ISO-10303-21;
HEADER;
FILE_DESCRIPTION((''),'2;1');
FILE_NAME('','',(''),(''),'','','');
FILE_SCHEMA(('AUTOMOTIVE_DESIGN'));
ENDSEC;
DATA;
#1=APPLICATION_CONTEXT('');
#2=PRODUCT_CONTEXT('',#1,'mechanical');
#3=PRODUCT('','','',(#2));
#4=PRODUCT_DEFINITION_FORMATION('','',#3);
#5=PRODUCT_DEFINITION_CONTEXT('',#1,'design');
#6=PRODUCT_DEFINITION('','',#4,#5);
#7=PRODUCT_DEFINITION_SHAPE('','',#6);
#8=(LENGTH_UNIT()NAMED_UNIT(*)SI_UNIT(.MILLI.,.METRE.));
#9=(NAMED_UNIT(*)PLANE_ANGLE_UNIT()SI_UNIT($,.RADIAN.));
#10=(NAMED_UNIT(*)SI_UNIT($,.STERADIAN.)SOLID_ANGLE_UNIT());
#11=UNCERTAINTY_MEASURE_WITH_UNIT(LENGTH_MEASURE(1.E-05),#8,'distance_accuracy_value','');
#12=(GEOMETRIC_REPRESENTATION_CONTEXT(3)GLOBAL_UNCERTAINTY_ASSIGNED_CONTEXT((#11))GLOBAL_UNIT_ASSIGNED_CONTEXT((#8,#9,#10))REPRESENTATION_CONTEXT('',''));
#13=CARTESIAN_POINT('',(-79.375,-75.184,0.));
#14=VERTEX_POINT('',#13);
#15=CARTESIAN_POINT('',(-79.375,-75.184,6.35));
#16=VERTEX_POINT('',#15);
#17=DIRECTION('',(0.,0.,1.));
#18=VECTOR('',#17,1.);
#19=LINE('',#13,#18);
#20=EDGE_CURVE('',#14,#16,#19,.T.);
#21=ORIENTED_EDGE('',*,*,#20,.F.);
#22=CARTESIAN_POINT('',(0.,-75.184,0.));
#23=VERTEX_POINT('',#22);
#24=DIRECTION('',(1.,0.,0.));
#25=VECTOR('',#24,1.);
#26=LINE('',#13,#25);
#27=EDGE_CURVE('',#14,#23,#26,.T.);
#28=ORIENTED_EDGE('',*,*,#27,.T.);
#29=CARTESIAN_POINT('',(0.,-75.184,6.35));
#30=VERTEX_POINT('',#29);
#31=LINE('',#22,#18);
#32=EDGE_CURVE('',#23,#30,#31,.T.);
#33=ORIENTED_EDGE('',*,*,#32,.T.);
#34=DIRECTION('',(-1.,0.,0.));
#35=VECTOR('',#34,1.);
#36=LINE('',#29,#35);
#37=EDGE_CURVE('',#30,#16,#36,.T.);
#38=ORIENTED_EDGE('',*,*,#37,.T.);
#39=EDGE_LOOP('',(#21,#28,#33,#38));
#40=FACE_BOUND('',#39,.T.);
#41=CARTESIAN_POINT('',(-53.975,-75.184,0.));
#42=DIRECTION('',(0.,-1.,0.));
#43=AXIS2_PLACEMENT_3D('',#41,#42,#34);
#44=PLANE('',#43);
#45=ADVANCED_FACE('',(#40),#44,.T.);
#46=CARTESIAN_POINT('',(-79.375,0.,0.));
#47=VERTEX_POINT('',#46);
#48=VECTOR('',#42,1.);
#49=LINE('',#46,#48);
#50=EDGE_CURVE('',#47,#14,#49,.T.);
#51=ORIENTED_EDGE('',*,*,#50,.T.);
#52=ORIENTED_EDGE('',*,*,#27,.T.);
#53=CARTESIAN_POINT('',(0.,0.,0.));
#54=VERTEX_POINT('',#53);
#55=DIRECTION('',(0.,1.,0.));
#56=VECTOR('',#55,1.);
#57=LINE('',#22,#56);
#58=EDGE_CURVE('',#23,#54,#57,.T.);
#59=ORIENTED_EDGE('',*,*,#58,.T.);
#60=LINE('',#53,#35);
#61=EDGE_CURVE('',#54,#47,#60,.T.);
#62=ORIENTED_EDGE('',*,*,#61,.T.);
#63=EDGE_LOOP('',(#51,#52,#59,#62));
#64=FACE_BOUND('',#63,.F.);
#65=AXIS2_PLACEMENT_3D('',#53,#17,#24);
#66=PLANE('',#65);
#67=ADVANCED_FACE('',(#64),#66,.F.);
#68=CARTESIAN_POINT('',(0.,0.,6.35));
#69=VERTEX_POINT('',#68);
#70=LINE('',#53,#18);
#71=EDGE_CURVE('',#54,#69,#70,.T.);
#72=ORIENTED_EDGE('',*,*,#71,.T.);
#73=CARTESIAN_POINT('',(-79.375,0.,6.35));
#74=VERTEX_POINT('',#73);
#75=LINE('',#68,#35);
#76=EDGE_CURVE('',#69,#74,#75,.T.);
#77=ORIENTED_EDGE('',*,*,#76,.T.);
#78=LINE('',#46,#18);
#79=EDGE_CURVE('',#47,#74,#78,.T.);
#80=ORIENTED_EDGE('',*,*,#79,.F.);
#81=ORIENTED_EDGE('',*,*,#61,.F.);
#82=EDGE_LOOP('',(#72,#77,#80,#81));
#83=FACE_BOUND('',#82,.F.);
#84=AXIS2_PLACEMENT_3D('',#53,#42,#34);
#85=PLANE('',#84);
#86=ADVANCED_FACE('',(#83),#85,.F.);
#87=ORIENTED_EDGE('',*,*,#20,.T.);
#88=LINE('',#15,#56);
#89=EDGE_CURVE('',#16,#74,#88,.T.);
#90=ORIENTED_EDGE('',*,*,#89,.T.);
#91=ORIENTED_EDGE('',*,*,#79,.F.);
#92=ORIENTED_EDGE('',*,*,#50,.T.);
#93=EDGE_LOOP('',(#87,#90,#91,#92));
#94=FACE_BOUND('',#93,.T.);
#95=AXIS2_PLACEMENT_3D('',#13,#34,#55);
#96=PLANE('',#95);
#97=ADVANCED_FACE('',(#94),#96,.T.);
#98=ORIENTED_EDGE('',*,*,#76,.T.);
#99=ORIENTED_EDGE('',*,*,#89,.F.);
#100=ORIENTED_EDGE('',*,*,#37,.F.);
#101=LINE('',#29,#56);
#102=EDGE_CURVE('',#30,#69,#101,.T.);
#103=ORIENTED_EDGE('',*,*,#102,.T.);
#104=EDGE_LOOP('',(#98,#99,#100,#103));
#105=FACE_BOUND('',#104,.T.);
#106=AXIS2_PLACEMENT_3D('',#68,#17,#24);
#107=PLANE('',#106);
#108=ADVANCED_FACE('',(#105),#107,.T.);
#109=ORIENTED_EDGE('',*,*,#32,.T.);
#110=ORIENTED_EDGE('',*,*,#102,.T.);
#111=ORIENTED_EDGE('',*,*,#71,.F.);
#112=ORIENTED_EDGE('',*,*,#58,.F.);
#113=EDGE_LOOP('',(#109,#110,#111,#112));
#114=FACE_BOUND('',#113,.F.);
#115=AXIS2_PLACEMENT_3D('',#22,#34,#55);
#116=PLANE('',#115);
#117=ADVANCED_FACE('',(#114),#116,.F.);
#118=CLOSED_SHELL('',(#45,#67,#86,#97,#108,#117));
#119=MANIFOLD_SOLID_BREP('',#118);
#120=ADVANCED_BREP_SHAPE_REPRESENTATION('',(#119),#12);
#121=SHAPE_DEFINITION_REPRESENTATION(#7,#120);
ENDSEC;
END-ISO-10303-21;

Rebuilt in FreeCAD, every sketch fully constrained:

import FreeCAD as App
import Part
import Sketcher

V = App.Vector
Q = App.Units.Quantity


def add_polygon(sketch, points):
    """Adds a closed chain of lines whose ends are joined by coincident constraints."""
    first, n = sketch.GeometryCount, len(points)
    for a, b in zip(points, points[1:] + points[:1]):
        sketch.addGeometry(Part.LineSegment(App.Vector(*a, 0), App.Vector(*b, 0)), False)
    for i in range(n):
        sketch.addConstraint(Sketcher.Constraint("Coincident", first + i, 2, first + (i + 1) % n, 1))

doc = App.newDocument("Part")
body = doc.addObject("PartDesign::Body", "Body")

sketch1 = body.newObject("Sketcher::SketchObject", "Sketch")
sketch1.AttachmentSupport = (doc.getObject("XY_Plane"), [""])
sketch1.MapMode = "FlatFace"
add_polygon(sketch1, [(-79.375, -75.184), (0, -75.184), (0, 0), (-79.375, 0)])
sketch1.addConstraint([
    Sketcher.Constraint("Horizontal", 0),
    Sketcher.Constraint("Vertical", 1),
    Sketcher.Constraint("Horizontal", 2),
    Sketcher.Constraint("Vertical", 3),
    Sketcher.Constraint("Coincident", 1, 2, -1, 1),
    Sketcher.Constraint("DistanceY", 1, 1, 1, 2, Q("2.96 in")),
    Sketcher.Constraint("DistanceX", 0, 1, 0, 2, Q("3.125 in")),
])
pad1 = body.newObject("PartDesign::Pad", "Pad")
pad1.Profile = sketch1
pad1.Length = Q("0.25 in")

doc.recompute()
